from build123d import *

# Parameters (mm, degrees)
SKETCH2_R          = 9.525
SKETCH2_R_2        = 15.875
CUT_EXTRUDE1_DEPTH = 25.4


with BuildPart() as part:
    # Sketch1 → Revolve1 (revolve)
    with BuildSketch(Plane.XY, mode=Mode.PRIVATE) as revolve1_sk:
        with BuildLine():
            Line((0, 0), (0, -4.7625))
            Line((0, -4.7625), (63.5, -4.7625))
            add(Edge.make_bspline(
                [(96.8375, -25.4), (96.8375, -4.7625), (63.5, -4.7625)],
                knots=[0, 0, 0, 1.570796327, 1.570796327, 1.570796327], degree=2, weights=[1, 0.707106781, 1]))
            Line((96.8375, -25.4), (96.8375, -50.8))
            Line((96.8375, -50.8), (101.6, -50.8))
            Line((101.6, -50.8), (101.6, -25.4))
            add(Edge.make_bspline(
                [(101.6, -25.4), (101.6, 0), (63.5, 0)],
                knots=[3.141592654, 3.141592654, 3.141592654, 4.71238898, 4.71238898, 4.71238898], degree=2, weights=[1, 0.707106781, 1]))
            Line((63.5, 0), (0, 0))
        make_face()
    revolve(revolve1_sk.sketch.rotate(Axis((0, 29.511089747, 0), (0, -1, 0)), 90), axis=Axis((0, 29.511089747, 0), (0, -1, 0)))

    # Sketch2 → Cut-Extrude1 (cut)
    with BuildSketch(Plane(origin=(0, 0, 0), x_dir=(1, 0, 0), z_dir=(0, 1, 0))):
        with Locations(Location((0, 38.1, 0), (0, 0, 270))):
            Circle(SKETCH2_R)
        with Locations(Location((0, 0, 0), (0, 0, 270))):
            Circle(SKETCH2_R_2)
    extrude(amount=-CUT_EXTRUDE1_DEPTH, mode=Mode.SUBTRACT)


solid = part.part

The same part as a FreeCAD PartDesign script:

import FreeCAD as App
import Part
import Sketcher

V = App.Vector
Q = App.Units.Quantity

doc = App.newDocument("Part")
params = doc.addObject("Spreadsheet::Sheet", "Params")
for row, (alias, value) in enumerate([
    ("sketch1_height", "1 in"),
    ("revolution_angle", "360 deg"),
    ("sketch2_diameter", "0.75 in"),
    ("sketch2_diameter2", "1.25 in"),
    ("pocket1_length", "1 in"),
], start=1):
    params.set(f"A{row}", alias)
    params.set(f"B{row}", "=" + value)
    params.setAlias(f"B{row}", alias)

body = doc.addObject("PartDesign::Body", "Body")

sketch1 = body.newObject("Sketcher::SketchObject", "Sketch")
sketch1.AttachmentSupport = (doc.getObject("XY_Plane"), [""])
sketch1.MapMode = "FlatFace"
sketch1.addGeometry(Part.LineSegment(V(0, 0, 0), V(0, -4.7625, 0)), False)
sketch1.addGeometry(Part.LineSegment(V(0, -4.7625, 0), V(63.5, -4.7625, 0)), False)
sketch1.addGeometry(Part.BSplineCurve([V(96.8375, -25.4, 0), V(96.8375, -4.7625, 0), V(63.5, -4.7625, 0)], [3, 3], [0, 1.570796327], False, 2, [1, 0.707106781, 1], False), False)
sketch1.addGeometry(Part.LineSegment(V(96.8375, -25.4, 0), V(96.8375, -50.8, 0)), False)
sketch1.addGeometry(Part.LineSegment(V(96.8375, -50.8, 0), V(101.6, -50.8, 0)), False)
sketch1.addGeometry(Part.LineSegment(V(101.6, -50.8, 0), V(101.6, -25.4, 0)), False)
sketch1.addGeometry(Part.BSplineCurve([V(101.6, -25.4, 0), V(101.6, 0, 0), V(63.5, 0, 0)], [3, 3], [3.141592654, 4.71238898], False, 2, [1, 0.707106781, 1], False), False)
sketch1.addGeometry(Part.LineSegment(V(63.5, 0, 0), V(0, 0, 0)), False)
sketch1.addConstraint(Sketcher.Constraint("Block", 2))
sketch1.addConstraint(Sketcher.Constraint("Block", 6))
sketch1.addConstraint(Sketcher.Constraint("Coincident", 0, 2, 1, 1))
sketch1.addConstraint(Sketcher.Constraint("Coincident", 1, 2, 2, 2))
sketch1.addConstraint(Sketcher.Constraint("Coincident", 2, 1, 3, 1))
sketch1.addConstraint(Sketcher.Constraint("Coincident", 3, 2, 4, 1))
sketch1.addConstraint(Sketcher.Constraint("Coincident", 4, 2, 5, 1))
sketch1.addConstraint(Sketcher.Constraint("Coincident", 5, 2, 6, 1))
sketch1.addConstraint(Sketcher.Constraint("Coincident", 6, 2, 7, 1))
sketch1.addConstraint(Sketcher.Constraint("Coincident", 7, 2, 0, 1))
sketch1.addConstraint(Sketcher.Constraint("Vertical", 0))
sketch1.addConstraint(Sketcher.Constraint("Horizontal", 1))
sketch1.addConstraint(Sketcher.Constraint("Vertical", 3))
sketch1.addConstraint(Sketcher.Constraint("Horizontal", 4))
sketch1.addConstraint(Sketcher.Constraint("Vertical", 5))
sketch1.addConstraint(Sketcher.Constraint("Horizontal", 7))
sketch1.addConstraint(Sketcher.Constraint("PointOnObject", 0, 2, -2))
sketch1.addConstraint(Sketcher.Constraint("DistanceY", 3, 2, 3, 1, Q("1 in")))
sketch1.setExpression("Constraints[17]", "Params.sketch1_height")
revolution = body.newObject("PartDesign::Revolution", "Revolution")
revolution.Profile = sketch1
revolution.ReferenceAxis = (sketch1, ["V_Axis"])
revolution.setExpression("Angle", "Params.revolution_angle")

sketch2 = body.newObject("Sketcher::SketchObject", "Sketch001")
sketch2.AttachmentSupport = (doc.getObject("XZ_Plane"), [""])
sketch2.MapMode = "FlatFace"
sketch2.addGeometry(Part.Circle(V(0, -38, 0), V(0, 0, 1), 10), False)
sketch2.addGeometry(Part.Circle(V(0, 0, 0), V(0, 0, 1), 16), False)
sketch2.addConstraint(Sketcher.Constraint("Coincident", 1, 3, -1, 1))
sketch2.addConstraint(Sketcher.Constraint("PointOnObject", 0, 3, -2))
sketch2.addConstraint(Sketcher.Constraint("Diameter", 0, Q("0.75 in")))
sketch2.addConstraint(Sketcher.Constraint("Diameter", 1, Q("1.25 in")))
sketch2.addConstraint(Sketcher.Constraint("DistanceY", 0, 3, -1, 1, Q("1.5 in")))
sketch2.setExpression("Constraints[2]", "Params.sketch2_diameter")
sketch2.setExpression("Constraints[3]", "Params.sketch2_diameter2")
pocket1 = body.newObject("PartDesign::Pocket", "Pocket")
pocket1.Profile = sketch2
pocket1.setExpression("Length", "Params.pocket1_length")
pocket1.Reversed = True

doc.recompute()
